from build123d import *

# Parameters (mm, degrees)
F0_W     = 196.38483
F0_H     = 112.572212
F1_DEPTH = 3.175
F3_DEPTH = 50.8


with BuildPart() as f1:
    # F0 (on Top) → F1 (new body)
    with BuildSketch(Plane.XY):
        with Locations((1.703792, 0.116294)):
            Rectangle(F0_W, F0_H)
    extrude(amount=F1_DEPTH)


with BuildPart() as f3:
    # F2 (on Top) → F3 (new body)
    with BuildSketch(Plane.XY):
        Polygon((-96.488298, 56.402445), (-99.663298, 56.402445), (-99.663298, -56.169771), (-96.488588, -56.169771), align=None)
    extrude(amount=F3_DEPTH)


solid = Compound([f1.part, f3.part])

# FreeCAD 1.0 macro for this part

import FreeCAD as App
import Part
import Sketcher
from FreeCAD import Vector
Q = App.Units.Quantity


def add_polygon(sketch, points):
    """Adds a closed chain of lines whose ends are joined by coincident constraints."""
    first, n = sketch.GeometryCount, len(points)
    for a, b in zip(points, points[1:] + points[:1]):
        sketch.addGeometry(Part.LineSegment(App.Vector(*a, 0), App.Vector(*b, 0)), False)
    for i in range(n):
        sketch.addConstraint(Sketcher.Constraint("Coincident", first + i, 2, first + (i + 1) % n, 1))

doc = App.newDocument("Part")
params = doc.addObject("Spreadsheet::Sheet", "Params")
for row, (alias, value) in enumerate([
    ("pad1_length", "0.125 in"),
    ("sketch2_width", "0.125 in"),
    ("pad2_length", "2 in"),
], start=1):
    params.set(f"A{row}", alias)
    params.set(f"B{row}", "=" + value)
    params.setAlias(f"B{row}", alias)

body = doc.addObject("PartDesign::Body", "Body")

# Sketch on XY plane
sketch1 = body.newObject("Sketcher::SketchObject", "Sketch")
sketch1.AttachmentSupport = (doc.getObject("XY_Plane"), [""])
sketch1.MapMode = "FlatFace"
add_polygon(sketch1, [(-96, 56), (-96, -56), (100, -56), (100, 56)])  # lines 0-3
sketch1.addConstraint(Sketcher.Constraint("Vertical", 0))
sketch1.addConstraint(Sketcher.Constraint("Horizontal", 1))
sketch1.addConstraint(Sketcher.Constraint("Vertical", 2))
sketch1.addConstraint(Sketcher.Constraint("Horizontal", 3))
sketch1.addConstraint(Sketcher.Constraint("DistanceX", 1, 1, 1, 2, Q("196.38483 mm")))
sketch1.addConstraint(Sketcher.Constraint("DistanceY", -1, 1, 2, 2, Q("56.4024 mm")))
sketch1.addConstraint(Sketcher.Constraint("DistanceY", 0, 2, 0, 1, Q("112.572212 mm")))
sketch1.addConstraint(Sketcher.Constraint("DistanceX", 0, 2, -1, 1, Q("96.488623 mm")))
pad1 = body.newObject("PartDesign::Pad", "Pad")
pad1.Profile = sketch1
pad1.setExpression("Length", "Params.pad1_length")
body2 = doc.addObject("PartDesign::Body", "Body001")

# Sketch on XY plane
sketch2 = body2.newObject("Sketcher::SketchObject", "Sketch001")
sketch2.AttachmentSupport = (doc.getObject("XY_Plane001"), [""])
sketch2.MapMode = "FlatFace"
add_polygon(sketch2, [(-96.5, 56.4), (-99.7, 56.4), (-99.7, -56.2), (-96.5, -56.2)])  # lines 0-3
sketch2.addConstraint(Sketcher.Constraint("Horizontal", 0))
sketch2.addConstraint(Sketcher.Constraint("Vertical", 1))
sketch2.addConstraint(Sketcher.Constraint("Horizontal", 2))
sketch2.addConstraint(Sketcher.Constraint("DistanceX", 0, 2, 0, 1, Q("0.125 in")))
sketch2.addConstraint(Sketcher.Constraint("DistanceX", 2, 1, 2, 2, Q("3.17471 mm")))
sketch2.addConstraint(Sketcher.Constraint("DistanceX", 3, 2, -1, 1, Q("96.488298 mm")))
sketch2.addConstraint(Sketcher.Constraint("DistanceY", 1, 2, 1, 1, Q("112.572216 mm")))
sketch2.addConstraint(Sketcher.Constraint("DistanceY", 1, 2, -1, 1, Q("56.169771 mm")))
sketch2.setExpression("Constraints[7]", "Params.sketch2_width")
pad2 = body2.newObject("PartDesign::Pad", "Pad001")
pad2.Profile = sketch2
pad2.setExpression("Length", "Params.pad2_length")

doc.recompute()
